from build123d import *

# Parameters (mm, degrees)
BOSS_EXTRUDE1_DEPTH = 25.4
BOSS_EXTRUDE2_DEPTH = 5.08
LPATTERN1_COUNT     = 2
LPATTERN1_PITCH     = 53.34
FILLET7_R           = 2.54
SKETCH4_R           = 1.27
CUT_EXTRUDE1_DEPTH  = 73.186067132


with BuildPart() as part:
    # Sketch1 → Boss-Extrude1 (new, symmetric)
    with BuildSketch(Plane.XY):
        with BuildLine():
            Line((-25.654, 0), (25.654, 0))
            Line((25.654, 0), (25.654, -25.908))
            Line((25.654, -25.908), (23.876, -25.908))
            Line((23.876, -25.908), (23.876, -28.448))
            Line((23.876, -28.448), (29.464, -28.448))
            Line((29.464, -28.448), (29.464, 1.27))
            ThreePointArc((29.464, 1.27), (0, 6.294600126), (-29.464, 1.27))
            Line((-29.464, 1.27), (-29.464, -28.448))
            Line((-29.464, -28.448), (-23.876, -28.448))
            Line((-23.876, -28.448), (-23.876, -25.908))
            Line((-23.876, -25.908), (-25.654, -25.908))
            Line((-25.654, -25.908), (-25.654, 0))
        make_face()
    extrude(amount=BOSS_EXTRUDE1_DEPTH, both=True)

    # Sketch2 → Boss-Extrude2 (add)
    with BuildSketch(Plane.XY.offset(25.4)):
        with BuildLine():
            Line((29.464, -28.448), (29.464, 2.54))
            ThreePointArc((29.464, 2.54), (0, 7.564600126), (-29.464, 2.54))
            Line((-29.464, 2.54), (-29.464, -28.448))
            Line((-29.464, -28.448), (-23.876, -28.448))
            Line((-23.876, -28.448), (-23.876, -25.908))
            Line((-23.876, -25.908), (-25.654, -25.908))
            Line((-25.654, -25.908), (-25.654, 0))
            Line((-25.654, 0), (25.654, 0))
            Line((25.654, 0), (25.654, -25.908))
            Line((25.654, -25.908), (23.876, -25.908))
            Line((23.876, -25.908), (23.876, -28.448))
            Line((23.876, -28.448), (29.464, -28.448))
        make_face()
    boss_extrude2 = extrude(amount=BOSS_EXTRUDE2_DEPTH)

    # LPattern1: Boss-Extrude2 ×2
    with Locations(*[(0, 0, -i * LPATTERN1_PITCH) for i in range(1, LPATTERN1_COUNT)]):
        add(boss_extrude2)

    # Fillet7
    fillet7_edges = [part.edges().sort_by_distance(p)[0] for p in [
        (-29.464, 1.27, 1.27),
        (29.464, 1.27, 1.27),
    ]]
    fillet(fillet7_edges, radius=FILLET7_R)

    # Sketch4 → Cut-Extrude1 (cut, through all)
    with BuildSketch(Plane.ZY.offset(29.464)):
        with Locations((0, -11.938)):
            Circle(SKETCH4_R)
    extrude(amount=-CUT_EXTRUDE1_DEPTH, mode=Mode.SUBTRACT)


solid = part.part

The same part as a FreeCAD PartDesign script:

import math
import FreeCAD as App
import Part
import Sketcher
from FreeCAD import Vector
Q = App.Units.Quantity


def edges_at(feature, points):
    """Names of the edges that pass closest to the given points."""
    edges = feature.Shape.Edges
    near = lambda p: min(range(len(edges)), key=lambda i: edges[i].distToShape(Part.Vertex(*p))[0])
    return sorted({f"Edge{near(p) + 1}" for p in points})

doc = App.newDocument("Part")
body = doc.addObject("PartDesign::Body", "Body")

# Sketch on XY plane
sketch1 = body.newObject("Sketcher::SketchObject", "Sketch")
sketch1.AttachmentSupport = (doc.getObject("XY_Plane"), [""])
sketch1.MapMode = "FlatFace"
sketch1.addGeometry(Part.LineSegment(Vector(-25.7, 0, 0), Vector(25.7, 0, 0)), False)
sketch1.addGeometry(Part.LineSegment(Vector(25.7, 0, 0), Vector(25.7, -25.9, 0)), False)
sketch1.addGeometry(Part.LineSegment(Vector(25.7, -25.9, 0), Vector(23.9, -25.9, 0)), False)
sketch1.addGeometry(Part.LineSegment(Vector(23.9, -25.9, 0), Vector(23.9, -28.4, 0)), False)
sketch1.addGeometry(Part.LineSegment(Vector(23.9, -28.4, 0), Vector(29.5, -28.4, 0)), False)
sketch1.addGeometry(Part.LineSegment(Vector(29.5, -28.4, 0), Vector(29.5, 1.3, 0)), False)
sketch1.addGeometry(Part.ArcOfCircle(Part.Circle(Vector(0, -82.6, 0), Vector(0, 0, 1), 88.9), math.radians(71), math.radians(109)), False)
sketch1.addGeometry(Part.LineSegment(Vector(-29.5, 1.3, 0), Vector(-29.5, -28.4, 0)), False)
sketch1.addGeometry(Part.LineSegment(Vector(-29.5, -28.4, 0), Vector(-23.9, -28.4, 0)), False)
sketch1.addGeometry(Part.LineSegment(Vector(-23.9, -28.4, 0), Vector(-23.9, -25.9, 0)), False)
sketch1.addGeometry(Part.LineSegment(Vector(-23.9, -25.9, 0), Vector(-25.7, -25.9, 0)), False)
sketch1.addGeometry(Part.LineSegment(Vector(-25.7, -25.9, 0), Vector(-25.7, 0, 0)), False)
sketch1.addConstraint(Sketcher.Constraint("Coincident", 0, 2, 1, 1))
sketch1.addConstraint(Sketcher.Constraint("Coincident", 1, 2, 2, 1))
sketch1.addConstraint(Sketcher.Constraint("Coincident", 2, 2, 3, 1))
sketch1.addConstraint(Sketcher.Constraint("Coincident", 3, 2, 4, 1))
sketch1.addConstraint(Sketcher.Constraint("Coincident", 4, 2, 5, 1))
sketch1.addConstraint(Sketcher.Constraint("Coincident", 5, 2, 6, 1))
sketch1.addConstraint(Sketcher.Constraint("Coincident", 6, 2, 7, 1))
sketch1.addConstraint(Sketcher.Constraint("Coincident", 7, 2, 8, 1))
sketch1.addConstraint(Sketcher.Constraint("Coincident", 8, 2, 9, 1))
sketch1.addConstraint(Sketcher.Constraint("Coincident", 9, 2, 10, 1))
sketch1.addConstraint(Sketcher.Constraint("Coincident", 10, 2, 11, 1))
sketch1.addConstraint(Sketcher.Constraint("Coincident", 11, 2, 0, 1))
sketch1.addConstraint(Sketcher.Constraint("Horizontal", 0))
sketch1.addConstraint(Sketcher.Constraint("Vertical", 1))
sketch1.addConstraint(Sketcher.Constraint("Horizontal", 2))
sketch1.addConstraint(Sketcher.Constraint("Vertical", 3))
sketch1.addConstraint(Sketcher.Constraint("Horizontal", 4))
sketch1.addConstraint(Sketcher.Constraint("Vertical", 5))
sketch1.addConstraint(Sketcher.Constraint("Vertical", 7))
sketch1.addConstraint(Sketcher.Constraint("Horizontal", 8))
sketch1.addConstraint(Sketcher.Constraint("Vertical", 9))
sketch1.addConstraint(Sketcher.Constraint("Horizontal", 10))
sketch1.addConstraint(Sketcher.Constraint("Vertical", 11))
sketch1.addConstraint(Sketcher.Constraint("Symmetric", 0, 2, 11, 2, -1, 1))
sketch1.addConstraint(Sketcher.Constraint("Symmetric", 5, 2, 6, 2, -2))
sketch1.addConstraint(Sketcher.Constraint("Symmetric", 3, 2, 8, 2, -2))
sketch1.addConstraint(Sketcher.Constraint("Horizontal", 2, 2, 9, 2))
sketch1.addConstraint(Sketcher.Constraint("Radius", 6, Q("3.5 in")))
sketch1.addConstraint(Sketcher.Constraint("DistanceY", 3, 2, 3, 1, Q("0.1 in")))
sketch1.addConstraint(Sketcher.Constraint("DistanceX", 0, 1, 0, 2, Q("2.02 in")))
sketch1.addConstraint(Sketcher.Constraint("DistanceX", 2, 2, 2, 1, Q("0.07 in")))
sketch1.addConstraint(Sketcher.Constraint("DistanceX", 4, 1, 4, 2, Q("0.22 in")))
sketch1.addConstraint(Sketcher.Constraint("DistanceY", 1, 2, 1, 1, Q("1.02 in")))
sketch1.addConstraint(Sketcher.Constraint("DistanceY", 5, 1, 5, 2, Q("1.17 in")))
pad1 = body.newObject("PartDesign::Pad", "Pad")
pad1.Profile = sketch1
pad1.Length = Q("2 in")
pad1.Midplane = True

# Sketch on XY plane
sketch2 = body.newObject("Sketcher::SketchObject", "Sketch001")
sketch2.AttachmentSupport = (doc.getObject("XY_Plane"), [""])
sketch2.MapMode = "FlatFace"
sketch2.AttachmentOffset = App.Placement(Vector(0, 0, 1 * 25.4), App.Rotation())
sketch2.addGeometry(Part.LineSegment(Vector(29.5, -28.4, 0), Vector(29.5, 2.5, 0)), False)
sketch2.addGeometry(Part.ArcOfCircle(Part.Circle(Vector(0, -81.3, 0), Vector(0, 0, 1), 88.9), math.radians(71), math.radians(109)), False)
sketch2.addGeometry(Part.LineSegment(Vector(-29.5, 2.5, 0), Vector(-29.5, -28.4, 0)), False)
sketch2.addGeometry(Part.LineSegment(Vector(-29.5, -28.4, 0), Vector(-23.9, -28.4, 0)), False)
sketch2.addGeometry(Part.LineSegment(Vector(-23.9, -28.4, 0), Vector(-23.9, -25.9, 0)), False)
sketch2.addGeometry(Part.LineSegment(Vector(-23.9, -25.9, 0), Vector(-25.7, -25.9, 0)), False)
sketch2.addGeometry(Part.LineSegment(Vector(-25.7, -25.9, 0), Vector(-25.7, 0, 0)), False)
sketch2.addGeometry(Part.LineSegment(Vector(-25.7, 0, 0), Vector(25.7, 0, 0)), False)
sketch2.addGeometry(Part.LineSegment(Vector(25.7, 0, 0), Vector(25.7, -25.9, 0)), False)
sketch2.addGeometry(Part.LineSegment(Vector(25.7, -25.9, 0), Vector(23.9, -25.9, 0)), False)
sketch2.addGeometry(Part.LineSegment(Vector(23.9, -25.9, 0), Vector(23.9, -28.4, 0)), False)
sketch2.addGeometry(Part.LineSegment(Vector(23.9, -28.4, 0), Vector(29.5, -28.4, 0)), False)
sketch2.addConstraint(Sketcher.Constraint("Coincident", 0, 2, 1, 1))
sketch2.addConstraint(Sketcher.Constraint("Coincident", 1, 2, 2, 1))
sketch2.addConstraint(Sketcher.Constraint("Coincident", 2, 2, 3, 1))
sketch2.addConstraint(Sketcher.Constraint("Coincident", 3, 2, 4, 1))
sketch2.addConstraint(Sketcher.Constraint("Coincident", 4, 2, 5, 1))
sketch2.addConstraint(Sketcher.Constraint("Coincident", 5, 2, 6, 1))
sketch2.addConstraint(Sketcher.Constraint("Coincident", 6, 2, 7, 1))
sketch2.addConstraint(Sketcher.Constraint("Coincident", 7, 2, 8, 1))
sketch2.addConstraint(Sketcher.Constraint("Coincident", 8, 2, 9, 1))
sketch2.addConstraint(Sketcher.Constraint("Coincident", 9, 2, 10, 1))
sketch2.addConstraint(Sketcher.Constraint("Coincident", 10, 2, 11, 1))
sketch2.addConstraint(Sketcher.Constraint("Coincident", 11, 2, 0, 1))
sketch2.addConstraint(Sketcher.Constraint("Vertical", 0))
sketch2.addConstraint(Sketcher.Constraint("Vertical", 2))
sketch2.addConstraint(Sketcher.Constraint("Horizontal", 3))
sketch2.addConstraint(Sketcher.Constraint("Vertical", 4))
sketch2.addConstraint(Sketcher.Constraint("Horizontal", 5))
sketch2.addConstraint(Sketcher.Constraint("Vertical", 6))
sketch2.addConstraint(Sketcher.Constraint("Horizontal", 7))
sketch2.addConstraint(Sketcher.Constraint("Vertical", 8))
sketch2.addConstraint(Sketcher.Constraint("Horizontal", 9))
sketch2.addConstraint(Sketcher.Constraint("Vertical", 10))
sketch2.addConstraint(Sketcher.Constraint("Horizontal", 11))
sketch2.addConstraint(Sketcher.Constraint("Symmetric", 6, 2, 7, 2, -1, 1))
sketch2.addConstraint(Sketcher.Constraint("Symmetric", 0, 2, 1, 2, -2))
sketch2.addConstraint(Sketcher.Constraint("Symmetric", 4, 2, 9, 2, -2))
sketch2.addConstraint(Sketcher.Constraint("Horizontal", 3, 2, 10, 2))
sketch2.addConstraint(Sketcher.Constraint("Radius", 1, Q("3.5 in")))
sketch2.addConstraint(Sketcher.Constraint("DistanceY", 4, 1, 4, 2, Q("0.1 in")))
sketch2.addConstraint(Sketcher.Constraint("DistanceX", 3, 1, 3, 2, Q("0.22 in")))
sketch2.addConstraint(Sketcher.Constraint("DistanceX", 5, 2, 5, 1, Q("0.07 in")))
sketch2.addConstraint(Sketcher.Constraint("DistanceX", 7, 1, 7, 2, Q("2.02 in")))
sketch2.addConstraint(Sketcher.Constraint("DistanceY", 0, 1, 0, 2, Q("1.22 in")))
sketch2.addConstraint(Sketcher.Constraint("DistanceY", 6, 1, 6, 2, Q("1.02 in")))
pad2 = body.newObject("PartDesign::Pad", "Pad001")
pad2.Profile = sketch2
pad2.Length = Q("0.2 in")
doc.recompute()

linearpattern = body.newObject("PartDesign::LinearPattern", "LinearPattern")
linearpattern.Originals = [pad2]
linearpattern.Direction = (doc.getObject("Z_Axis"), [""])
linearpattern.Mode = "offset"
linearpattern.Offset = Q("2.1 in")
linearpattern.Occurrences = 2
linearpattern.Reversed = True
body.Tip = linearpattern
doc.recompute()

fillet = body.newObject("PartDesign::Fillet", "Fillet")
fillet.Base = (linearpattern, edges_at(linearpattern, [(-29.464, 1.27, 1.27), (29.464, 1.27, 1.27)]))
fillet.Radius = Q("0.1 in")

# Sketch on YZ plane
sketch3 = body.newObject("Sketcher::SketchObject", "Sketch002")
sketch3.AttachmentSupport = (doc.getObject("YZ_Plane"), [""])
sketch3.MapMode = "FlatFace"
sketch3.AttachmentOffset = App.Placement(Vector(0, 0, -1.16 * 25.4), App.Rotation())
sketch3.addGeometry(Part.Circle(Vector(-11.9, 0, 0), Vector(0, 0, 1), 1.3), False)
sketch3.addConstraint(Sketcher.Constraint("PointOnObject", 0, 3, -1))
sketch3.addConstraint(Sketcher.Constraint("Diameter", 0, Q("0.1 in")))
sketch3.addConstraint(Sketcher.Constraint("DistanceX", 0, 3, -1, 1, Q("0.47 in")))
pocket1 = body.newObject("PartDesign::Pocket", "Pocket")
pocket1.Profile = sketch3
pocket1.Type = "ThroughAll"
pocket1.Reversed = True

doc.recompute()
